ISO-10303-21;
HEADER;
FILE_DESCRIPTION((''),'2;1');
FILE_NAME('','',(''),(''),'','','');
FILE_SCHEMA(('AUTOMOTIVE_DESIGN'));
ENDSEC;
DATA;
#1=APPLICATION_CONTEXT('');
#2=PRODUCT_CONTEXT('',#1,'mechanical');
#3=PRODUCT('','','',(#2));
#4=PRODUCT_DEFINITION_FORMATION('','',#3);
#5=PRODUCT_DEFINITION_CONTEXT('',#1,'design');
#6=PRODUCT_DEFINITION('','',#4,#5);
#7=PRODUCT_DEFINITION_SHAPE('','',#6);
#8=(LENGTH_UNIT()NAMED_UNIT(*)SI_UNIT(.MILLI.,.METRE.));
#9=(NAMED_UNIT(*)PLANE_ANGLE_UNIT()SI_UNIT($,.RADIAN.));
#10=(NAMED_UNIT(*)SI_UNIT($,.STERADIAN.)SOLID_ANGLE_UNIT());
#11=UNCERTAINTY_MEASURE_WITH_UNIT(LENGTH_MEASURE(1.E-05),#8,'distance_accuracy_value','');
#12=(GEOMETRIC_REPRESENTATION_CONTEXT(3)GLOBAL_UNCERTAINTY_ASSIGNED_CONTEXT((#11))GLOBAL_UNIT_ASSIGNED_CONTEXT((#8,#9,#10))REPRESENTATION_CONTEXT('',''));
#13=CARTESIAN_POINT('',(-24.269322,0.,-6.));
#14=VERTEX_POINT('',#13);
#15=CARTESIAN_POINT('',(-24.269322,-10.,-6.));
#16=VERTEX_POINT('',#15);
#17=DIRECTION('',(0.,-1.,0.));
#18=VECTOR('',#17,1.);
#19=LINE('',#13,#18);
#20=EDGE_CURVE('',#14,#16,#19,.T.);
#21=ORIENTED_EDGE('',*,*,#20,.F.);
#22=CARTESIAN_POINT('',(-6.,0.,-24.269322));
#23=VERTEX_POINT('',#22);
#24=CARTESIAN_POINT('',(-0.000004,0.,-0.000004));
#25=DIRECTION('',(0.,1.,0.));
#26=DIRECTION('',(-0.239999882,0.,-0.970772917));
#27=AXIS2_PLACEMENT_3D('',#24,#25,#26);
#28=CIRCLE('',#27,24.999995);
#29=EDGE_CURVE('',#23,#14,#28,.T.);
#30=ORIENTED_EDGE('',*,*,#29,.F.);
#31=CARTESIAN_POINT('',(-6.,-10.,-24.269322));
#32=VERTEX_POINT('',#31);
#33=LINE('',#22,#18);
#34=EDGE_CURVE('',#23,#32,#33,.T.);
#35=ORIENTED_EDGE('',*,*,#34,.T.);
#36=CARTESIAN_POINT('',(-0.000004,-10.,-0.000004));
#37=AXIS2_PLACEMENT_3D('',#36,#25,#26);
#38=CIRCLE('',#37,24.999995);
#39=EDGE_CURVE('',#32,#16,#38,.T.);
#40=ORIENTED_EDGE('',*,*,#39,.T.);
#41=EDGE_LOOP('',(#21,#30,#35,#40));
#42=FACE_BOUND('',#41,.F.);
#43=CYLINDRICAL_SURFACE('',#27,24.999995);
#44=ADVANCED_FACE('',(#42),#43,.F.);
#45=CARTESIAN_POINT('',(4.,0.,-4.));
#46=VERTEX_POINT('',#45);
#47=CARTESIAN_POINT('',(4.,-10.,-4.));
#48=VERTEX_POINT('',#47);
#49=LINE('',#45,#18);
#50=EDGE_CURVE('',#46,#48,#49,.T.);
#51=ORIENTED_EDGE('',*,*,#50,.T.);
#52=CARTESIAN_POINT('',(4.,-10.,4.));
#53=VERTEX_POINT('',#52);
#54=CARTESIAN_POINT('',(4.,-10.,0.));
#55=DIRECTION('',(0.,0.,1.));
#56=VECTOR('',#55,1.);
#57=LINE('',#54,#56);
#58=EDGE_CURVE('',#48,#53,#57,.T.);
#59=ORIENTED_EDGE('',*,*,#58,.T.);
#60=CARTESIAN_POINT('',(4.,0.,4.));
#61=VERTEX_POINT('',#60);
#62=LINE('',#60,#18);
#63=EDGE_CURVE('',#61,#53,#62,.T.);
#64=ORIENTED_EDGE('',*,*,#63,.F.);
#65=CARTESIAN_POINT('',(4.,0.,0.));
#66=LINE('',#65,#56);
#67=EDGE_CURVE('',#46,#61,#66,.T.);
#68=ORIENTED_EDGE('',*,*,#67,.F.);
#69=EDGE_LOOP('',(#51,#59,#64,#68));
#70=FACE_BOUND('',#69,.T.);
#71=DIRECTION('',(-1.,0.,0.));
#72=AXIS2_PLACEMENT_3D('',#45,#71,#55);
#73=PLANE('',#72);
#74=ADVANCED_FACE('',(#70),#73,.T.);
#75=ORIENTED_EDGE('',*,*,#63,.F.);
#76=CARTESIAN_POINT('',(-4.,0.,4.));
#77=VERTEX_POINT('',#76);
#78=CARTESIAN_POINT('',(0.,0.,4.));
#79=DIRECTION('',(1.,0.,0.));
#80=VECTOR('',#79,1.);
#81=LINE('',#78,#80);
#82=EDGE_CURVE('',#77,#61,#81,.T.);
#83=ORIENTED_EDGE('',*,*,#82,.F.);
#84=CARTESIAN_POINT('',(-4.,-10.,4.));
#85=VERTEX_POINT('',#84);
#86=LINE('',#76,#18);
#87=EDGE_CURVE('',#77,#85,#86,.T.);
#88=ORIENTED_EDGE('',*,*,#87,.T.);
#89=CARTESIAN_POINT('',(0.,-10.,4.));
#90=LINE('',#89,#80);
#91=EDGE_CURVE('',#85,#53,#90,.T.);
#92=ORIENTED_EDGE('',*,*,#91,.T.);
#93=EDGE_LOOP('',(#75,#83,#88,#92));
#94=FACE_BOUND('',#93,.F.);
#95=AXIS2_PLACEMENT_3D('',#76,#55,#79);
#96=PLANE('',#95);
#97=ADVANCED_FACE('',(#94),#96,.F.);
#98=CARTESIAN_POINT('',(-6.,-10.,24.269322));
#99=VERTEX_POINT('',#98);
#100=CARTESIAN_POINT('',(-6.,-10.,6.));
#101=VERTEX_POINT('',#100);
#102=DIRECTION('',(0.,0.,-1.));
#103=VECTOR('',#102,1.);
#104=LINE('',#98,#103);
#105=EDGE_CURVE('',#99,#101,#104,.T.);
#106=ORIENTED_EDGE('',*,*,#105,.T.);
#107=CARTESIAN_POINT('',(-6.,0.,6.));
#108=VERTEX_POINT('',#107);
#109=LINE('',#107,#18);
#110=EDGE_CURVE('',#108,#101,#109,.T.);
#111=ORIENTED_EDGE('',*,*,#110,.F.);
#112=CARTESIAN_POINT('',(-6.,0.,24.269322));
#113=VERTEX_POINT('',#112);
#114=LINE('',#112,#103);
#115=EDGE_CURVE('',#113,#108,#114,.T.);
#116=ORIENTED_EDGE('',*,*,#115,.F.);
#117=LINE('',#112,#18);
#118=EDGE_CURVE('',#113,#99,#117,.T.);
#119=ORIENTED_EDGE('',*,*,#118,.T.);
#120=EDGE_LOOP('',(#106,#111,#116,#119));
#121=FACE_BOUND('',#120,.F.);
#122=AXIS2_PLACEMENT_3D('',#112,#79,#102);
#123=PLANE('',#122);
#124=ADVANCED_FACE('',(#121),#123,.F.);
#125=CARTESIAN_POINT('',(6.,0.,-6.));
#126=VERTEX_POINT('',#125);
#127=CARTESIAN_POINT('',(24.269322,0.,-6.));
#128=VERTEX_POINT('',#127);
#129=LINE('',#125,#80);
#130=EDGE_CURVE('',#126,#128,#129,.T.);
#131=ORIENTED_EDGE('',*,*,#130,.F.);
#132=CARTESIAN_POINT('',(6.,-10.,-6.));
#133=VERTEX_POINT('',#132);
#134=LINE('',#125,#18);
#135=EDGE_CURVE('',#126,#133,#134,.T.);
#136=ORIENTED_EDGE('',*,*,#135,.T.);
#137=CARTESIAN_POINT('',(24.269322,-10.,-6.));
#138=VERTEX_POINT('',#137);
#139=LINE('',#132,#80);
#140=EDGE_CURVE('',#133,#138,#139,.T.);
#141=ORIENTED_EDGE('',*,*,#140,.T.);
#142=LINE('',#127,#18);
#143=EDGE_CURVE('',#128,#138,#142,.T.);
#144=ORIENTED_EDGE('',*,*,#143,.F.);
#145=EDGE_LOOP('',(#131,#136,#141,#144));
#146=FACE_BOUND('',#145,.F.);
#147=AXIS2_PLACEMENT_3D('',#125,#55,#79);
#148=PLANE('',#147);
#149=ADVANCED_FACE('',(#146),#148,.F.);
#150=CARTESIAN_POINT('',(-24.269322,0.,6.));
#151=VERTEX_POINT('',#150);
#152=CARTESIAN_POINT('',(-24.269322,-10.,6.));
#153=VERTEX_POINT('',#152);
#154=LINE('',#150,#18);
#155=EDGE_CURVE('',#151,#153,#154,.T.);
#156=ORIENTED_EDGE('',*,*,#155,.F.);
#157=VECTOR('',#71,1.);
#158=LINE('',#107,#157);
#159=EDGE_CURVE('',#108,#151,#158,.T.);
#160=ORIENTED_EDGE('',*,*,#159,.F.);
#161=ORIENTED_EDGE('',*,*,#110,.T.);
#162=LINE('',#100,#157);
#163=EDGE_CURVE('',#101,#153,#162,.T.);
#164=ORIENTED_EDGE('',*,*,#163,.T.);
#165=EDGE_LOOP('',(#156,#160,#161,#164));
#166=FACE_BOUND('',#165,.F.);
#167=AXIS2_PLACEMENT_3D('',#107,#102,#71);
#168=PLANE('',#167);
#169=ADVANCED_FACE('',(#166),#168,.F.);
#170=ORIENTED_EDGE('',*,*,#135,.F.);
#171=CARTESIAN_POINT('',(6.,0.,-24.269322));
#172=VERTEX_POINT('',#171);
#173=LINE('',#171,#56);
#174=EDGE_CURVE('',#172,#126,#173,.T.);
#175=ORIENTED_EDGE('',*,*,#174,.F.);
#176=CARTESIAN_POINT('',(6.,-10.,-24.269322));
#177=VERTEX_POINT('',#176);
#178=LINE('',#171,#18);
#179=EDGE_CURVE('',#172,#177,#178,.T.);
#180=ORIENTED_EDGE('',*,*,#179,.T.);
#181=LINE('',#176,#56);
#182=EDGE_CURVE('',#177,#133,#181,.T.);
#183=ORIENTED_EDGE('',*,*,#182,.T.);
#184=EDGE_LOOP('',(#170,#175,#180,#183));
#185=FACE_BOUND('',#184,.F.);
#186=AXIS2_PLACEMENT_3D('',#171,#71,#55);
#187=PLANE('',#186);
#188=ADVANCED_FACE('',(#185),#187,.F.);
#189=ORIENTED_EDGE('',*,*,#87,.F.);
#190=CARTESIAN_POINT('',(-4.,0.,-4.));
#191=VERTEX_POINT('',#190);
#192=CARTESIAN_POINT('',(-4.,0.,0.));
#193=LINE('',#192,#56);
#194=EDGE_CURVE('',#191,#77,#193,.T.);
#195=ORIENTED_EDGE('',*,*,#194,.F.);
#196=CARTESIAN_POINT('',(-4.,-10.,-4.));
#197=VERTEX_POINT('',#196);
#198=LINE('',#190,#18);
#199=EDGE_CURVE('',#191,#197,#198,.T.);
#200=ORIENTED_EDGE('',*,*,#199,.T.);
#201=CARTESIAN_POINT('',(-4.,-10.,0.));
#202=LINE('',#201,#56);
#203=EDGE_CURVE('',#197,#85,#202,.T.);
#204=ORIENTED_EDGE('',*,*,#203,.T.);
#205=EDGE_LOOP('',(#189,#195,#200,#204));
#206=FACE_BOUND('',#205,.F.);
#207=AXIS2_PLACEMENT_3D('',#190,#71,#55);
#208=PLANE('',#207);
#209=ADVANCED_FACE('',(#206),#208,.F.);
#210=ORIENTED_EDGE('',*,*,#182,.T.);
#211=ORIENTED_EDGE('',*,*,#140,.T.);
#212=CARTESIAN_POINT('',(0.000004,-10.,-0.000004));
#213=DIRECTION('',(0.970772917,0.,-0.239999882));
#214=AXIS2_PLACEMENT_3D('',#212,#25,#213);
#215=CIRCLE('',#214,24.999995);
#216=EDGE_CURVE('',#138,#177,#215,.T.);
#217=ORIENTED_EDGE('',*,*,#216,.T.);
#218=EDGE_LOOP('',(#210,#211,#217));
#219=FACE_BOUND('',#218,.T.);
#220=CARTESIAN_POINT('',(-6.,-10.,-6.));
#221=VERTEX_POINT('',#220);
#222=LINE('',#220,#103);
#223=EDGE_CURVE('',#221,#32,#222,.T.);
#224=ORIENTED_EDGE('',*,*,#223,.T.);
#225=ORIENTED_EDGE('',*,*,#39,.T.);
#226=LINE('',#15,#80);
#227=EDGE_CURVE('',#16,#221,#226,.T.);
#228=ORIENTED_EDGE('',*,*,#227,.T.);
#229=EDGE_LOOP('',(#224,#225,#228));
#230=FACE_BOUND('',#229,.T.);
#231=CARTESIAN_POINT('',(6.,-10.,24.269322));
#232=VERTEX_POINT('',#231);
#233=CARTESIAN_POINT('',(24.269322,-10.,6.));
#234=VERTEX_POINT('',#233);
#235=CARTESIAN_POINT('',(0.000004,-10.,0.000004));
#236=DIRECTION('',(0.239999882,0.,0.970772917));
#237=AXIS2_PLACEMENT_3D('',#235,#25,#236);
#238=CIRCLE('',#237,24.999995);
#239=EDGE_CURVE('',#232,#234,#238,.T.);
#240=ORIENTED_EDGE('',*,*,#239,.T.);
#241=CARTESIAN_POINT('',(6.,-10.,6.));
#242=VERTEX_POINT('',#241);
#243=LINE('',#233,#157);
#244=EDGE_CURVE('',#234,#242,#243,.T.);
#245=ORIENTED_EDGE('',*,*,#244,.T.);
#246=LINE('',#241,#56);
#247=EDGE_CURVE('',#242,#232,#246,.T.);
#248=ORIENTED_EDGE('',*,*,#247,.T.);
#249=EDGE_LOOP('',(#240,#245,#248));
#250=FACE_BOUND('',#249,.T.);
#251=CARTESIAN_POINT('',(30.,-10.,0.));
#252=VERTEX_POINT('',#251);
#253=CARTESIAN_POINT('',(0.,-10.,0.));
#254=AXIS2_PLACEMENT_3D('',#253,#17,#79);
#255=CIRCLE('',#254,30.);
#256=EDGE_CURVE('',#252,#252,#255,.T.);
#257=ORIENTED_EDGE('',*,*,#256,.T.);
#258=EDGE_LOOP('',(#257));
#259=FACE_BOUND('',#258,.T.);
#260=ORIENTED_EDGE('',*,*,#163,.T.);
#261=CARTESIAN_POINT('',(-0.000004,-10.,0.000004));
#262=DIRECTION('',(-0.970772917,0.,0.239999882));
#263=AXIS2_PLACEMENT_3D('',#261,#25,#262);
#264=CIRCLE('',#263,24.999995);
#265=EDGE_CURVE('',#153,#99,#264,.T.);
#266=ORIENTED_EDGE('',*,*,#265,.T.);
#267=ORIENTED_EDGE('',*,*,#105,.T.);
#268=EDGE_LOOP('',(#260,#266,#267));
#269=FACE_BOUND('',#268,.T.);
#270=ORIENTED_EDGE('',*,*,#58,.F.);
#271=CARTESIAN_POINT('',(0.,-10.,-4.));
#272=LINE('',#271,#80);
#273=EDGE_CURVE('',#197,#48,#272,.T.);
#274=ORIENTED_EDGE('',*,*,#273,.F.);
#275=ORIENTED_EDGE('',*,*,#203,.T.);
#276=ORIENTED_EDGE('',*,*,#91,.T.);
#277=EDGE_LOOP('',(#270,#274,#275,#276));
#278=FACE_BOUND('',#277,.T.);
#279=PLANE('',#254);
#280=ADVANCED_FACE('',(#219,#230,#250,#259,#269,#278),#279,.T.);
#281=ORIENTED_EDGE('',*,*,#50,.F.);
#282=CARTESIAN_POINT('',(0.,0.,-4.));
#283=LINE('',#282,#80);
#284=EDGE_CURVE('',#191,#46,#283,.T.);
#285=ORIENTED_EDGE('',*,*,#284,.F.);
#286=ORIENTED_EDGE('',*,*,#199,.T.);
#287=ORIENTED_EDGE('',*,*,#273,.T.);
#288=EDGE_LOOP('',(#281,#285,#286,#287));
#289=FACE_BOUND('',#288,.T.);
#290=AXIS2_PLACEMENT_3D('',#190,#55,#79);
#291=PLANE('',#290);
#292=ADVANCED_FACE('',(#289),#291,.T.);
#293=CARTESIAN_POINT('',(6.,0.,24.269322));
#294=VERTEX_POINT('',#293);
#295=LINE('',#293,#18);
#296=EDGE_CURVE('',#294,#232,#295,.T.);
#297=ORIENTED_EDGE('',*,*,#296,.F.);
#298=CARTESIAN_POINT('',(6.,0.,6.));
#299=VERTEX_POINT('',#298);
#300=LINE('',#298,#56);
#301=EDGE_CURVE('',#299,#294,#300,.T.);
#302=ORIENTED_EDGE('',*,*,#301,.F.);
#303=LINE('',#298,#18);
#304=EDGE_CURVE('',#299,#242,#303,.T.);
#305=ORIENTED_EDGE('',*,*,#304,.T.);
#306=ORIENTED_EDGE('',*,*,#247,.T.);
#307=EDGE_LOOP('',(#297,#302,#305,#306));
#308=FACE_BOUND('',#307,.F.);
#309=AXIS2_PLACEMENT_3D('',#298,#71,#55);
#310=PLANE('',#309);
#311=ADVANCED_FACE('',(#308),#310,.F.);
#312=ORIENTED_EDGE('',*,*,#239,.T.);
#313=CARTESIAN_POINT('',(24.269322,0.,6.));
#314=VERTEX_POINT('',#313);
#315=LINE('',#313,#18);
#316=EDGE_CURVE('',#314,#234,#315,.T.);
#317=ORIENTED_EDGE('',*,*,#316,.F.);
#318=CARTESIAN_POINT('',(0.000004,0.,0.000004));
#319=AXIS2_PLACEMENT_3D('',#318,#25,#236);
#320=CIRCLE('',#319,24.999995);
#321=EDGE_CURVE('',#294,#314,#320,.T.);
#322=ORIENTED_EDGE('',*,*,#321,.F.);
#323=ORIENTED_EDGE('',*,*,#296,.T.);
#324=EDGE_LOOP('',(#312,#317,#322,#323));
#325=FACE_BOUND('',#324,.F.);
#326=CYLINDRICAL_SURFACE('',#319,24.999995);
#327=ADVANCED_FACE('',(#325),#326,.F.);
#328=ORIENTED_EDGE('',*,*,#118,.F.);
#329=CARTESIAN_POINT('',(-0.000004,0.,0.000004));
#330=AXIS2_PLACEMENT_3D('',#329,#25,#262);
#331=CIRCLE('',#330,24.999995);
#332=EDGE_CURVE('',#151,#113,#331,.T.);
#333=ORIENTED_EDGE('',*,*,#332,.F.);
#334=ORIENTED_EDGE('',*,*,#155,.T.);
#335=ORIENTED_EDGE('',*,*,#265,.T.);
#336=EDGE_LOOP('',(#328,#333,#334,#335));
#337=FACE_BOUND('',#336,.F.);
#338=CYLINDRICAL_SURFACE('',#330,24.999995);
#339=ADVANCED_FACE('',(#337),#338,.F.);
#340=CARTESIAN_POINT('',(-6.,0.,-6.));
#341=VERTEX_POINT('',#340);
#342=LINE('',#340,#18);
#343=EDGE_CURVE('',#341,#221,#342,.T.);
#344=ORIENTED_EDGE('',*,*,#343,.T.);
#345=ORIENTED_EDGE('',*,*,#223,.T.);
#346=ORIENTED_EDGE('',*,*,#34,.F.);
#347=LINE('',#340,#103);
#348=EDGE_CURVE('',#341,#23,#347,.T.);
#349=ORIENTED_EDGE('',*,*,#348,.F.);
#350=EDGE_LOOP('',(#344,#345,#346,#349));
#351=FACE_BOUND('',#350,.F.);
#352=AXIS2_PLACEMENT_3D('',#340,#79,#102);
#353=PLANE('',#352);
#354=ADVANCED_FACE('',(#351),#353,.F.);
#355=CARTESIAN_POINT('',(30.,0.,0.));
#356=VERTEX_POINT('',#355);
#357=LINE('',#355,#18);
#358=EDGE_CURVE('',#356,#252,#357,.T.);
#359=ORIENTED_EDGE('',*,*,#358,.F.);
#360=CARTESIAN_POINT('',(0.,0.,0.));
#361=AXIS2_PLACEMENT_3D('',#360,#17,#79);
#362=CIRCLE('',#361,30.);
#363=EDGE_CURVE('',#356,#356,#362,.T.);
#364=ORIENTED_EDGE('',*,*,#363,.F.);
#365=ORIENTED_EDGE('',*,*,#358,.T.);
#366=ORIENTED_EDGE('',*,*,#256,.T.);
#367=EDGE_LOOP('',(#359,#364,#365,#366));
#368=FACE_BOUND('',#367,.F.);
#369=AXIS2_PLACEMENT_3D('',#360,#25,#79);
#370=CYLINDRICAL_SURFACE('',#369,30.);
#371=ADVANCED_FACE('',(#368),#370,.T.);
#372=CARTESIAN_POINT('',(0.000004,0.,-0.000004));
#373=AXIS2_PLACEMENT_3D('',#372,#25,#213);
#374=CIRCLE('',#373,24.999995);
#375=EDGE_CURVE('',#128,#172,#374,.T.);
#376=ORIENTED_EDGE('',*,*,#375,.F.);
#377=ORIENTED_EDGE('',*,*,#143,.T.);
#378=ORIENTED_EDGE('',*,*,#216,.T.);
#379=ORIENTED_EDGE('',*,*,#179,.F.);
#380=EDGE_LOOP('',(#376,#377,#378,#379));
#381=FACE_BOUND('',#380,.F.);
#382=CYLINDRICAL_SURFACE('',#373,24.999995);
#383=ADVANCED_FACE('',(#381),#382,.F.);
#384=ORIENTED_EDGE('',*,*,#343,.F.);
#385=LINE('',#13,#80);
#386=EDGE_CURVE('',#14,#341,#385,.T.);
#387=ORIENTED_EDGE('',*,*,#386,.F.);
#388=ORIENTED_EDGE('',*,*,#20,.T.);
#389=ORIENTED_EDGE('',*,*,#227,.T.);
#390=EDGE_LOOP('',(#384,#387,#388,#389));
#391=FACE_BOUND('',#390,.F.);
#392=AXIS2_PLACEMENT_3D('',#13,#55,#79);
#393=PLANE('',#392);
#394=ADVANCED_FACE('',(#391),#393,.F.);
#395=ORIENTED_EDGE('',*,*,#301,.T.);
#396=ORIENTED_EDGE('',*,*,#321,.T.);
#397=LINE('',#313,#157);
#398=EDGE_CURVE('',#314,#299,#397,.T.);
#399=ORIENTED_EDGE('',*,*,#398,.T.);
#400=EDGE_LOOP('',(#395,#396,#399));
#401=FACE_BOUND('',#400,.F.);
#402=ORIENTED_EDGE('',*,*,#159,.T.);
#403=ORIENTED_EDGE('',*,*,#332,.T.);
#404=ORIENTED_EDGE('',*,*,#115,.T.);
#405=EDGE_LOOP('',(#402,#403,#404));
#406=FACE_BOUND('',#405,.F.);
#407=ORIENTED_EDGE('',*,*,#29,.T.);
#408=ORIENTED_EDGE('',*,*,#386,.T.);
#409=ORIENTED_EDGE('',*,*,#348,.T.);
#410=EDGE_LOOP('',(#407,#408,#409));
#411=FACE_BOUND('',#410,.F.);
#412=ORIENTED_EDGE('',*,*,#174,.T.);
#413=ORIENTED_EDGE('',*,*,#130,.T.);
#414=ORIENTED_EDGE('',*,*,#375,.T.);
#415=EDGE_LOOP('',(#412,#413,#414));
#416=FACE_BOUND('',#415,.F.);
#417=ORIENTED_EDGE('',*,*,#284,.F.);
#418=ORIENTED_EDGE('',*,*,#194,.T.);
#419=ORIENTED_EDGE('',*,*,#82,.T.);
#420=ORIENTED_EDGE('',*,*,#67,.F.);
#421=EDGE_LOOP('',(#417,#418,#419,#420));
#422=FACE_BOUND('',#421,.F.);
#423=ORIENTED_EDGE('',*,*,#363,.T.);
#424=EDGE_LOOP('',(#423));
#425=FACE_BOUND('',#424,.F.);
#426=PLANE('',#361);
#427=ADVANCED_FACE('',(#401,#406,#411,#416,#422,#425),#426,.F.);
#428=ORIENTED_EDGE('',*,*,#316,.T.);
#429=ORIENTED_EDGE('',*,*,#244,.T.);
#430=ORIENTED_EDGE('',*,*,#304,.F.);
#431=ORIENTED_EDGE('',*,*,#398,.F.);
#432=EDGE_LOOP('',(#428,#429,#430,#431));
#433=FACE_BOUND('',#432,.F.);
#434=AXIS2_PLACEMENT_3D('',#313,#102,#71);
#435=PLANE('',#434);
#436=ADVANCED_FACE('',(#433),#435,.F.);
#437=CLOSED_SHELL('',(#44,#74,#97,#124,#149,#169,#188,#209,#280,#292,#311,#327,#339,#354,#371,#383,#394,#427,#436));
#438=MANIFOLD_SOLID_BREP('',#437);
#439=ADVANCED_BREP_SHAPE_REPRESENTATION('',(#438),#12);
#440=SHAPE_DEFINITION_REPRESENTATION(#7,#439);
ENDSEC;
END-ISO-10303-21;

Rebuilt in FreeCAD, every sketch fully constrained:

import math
import FreeCAD as App
import Part
import Sketcher

doc = App.newDocument("Part")
body = doc.addObject("PartDesign::Body", "Body")

# Sketch on XZ plane
sketch1 = body.newObject("Sketcher::SketchObject", "Sketch")
sketch1.AttachmentSupport = (doc.getObject("XZ_Plane"), [""])
sketch1.MapMode = "FlatFace"
sketch1.addGeometry(Part.Circle(App.Vector(0, 0, 0), App.Vector(0, 0, 1), 30), False)
sketch1.addGeometry(Part.LineSegment(App.Vector(-24, -6, 0), App.Vector(-6, -6, 0)), False)
sketch1.addGeometry(Part.LineSegment(App.Vector(-6, -6, 0), App.Vector(-6, -24, 0)), False)
sketch1.addGeometry(Part.ArcOfCircle(Part.Circle(App.Vector(0, 0, 0), App.Vector(0, 0, 1), 25), math.radians(-166), math.radians(-104)), False)
sketch1.addGeometry(Part.LineSegment(App.Vector(6, -24, 0), App.Vector(6, -6, 0)), False)
sketch1.addGeometry(Part.LineSegment(App.Vector(6, -6, 0), App.Vector(24, -6, 0)), False)
sketch1.addGeometry(Part.ArcOfCircle(Part.Circle(App.Vector(0, 0, 0), App.Vector(0, 0, 1), 25), math.radians(-76), math.radians(-14)), False)
sketch1.addGeometry(Part.LineSegment(App.Vector(4, -4, 0), App.Vector(-4, -4, 0)), False)
sketch1.addGeometry(Part.LineSegment(App.Vector(-4, -4, 0), App.Vector(-4, 4, 0)), False)
sketch1.addGeometry(Part.LineSegment(App.Vector(-4, 4, 0), App.Vector(4, 4, 0)), False)
sketch1.addGeometry(Part.LineSegment(App.Vector(4, 4, 0), App.Vector(4, -4, 0)), False)
sketch1.addGeometry(Part.ArcOfCircle(Part.Circle(App.Vector(0, 0, 0), App.Vector(0, 0, 1), 25), math.radians(104), math.radians(166)), False)
sketch1.addGeometry(Part.LineSegment(App.Vector(-6, 24, 0), App.Vector(-6, 6, 0)), False)
sketch1.addGeometry(Part.LineSegment(App.Vector(-6, 6, 0), App.Vector(-24, 6, 0)), False)
sketch1.addGeometry(Part.LineSegment(App.Vector(6, 6, 0), App.Vector(6, 24, 0)), False)
sketch1.addGeometry(Part.ArcOfCircle(Part.Circle(App.Vector(0, 0, 0), App.Vector(0, 0, 1), 25), math.radians(14), math.radians(76)), False)
sketch1.addGeometry(Part.LineSegment(App.Vector(24, 6, 0), App.Vector(6, 6, 0)), False)
sketch1.addConstraint(Sketcher.Constraint("Coincident", 1, 2, 2, 1))
sketch1.addConstraint(Sketcher.Constraint("Coincident", 2, 2, 3, 2))
sketch1.addConstraint(Sketcher.Constraint("Coincident", 3, 1, 1, 1))
sketch1.addConstraint(Sketcher.Constraint("Coincident", 4, 2, 5, 1))
sketch1.addConstraint(Sketcher.Constraint("Coincident", 5, 2, 6, 2))
sketch1.addConstraint(Sketcher.Constraint("Coincident", 6, 1, 4, 1))
sketch1.addConstraint(Sketcher.Constraint("Coincident", 7, 2, 8, 1))
sketch1.addConstraint(Sketcher.Constraint("Coincident", 8, 2, 9, 1))
sketch1.addConstraint(Sketcher.Constraint("Coincident", 9, 2, 10, 1))
sketch1.addConstraint(Sketcher.Constraint("Coincident", 10, 2, 7, 1))
sketch1.addConstraint(Sketcher.Constraint("Coincident", 11, 1, 12, 1))
sketch1.addConstraint(Sketcher.Constraint("Coincident", 12, 2, 13, 1))
sketch1.addConstraint(Sketcher.Constraint("Coincident", 13, 2, 11, 2))
sketch1.addConstraint(Sketcher.Constraint("Coincident", 14, 2, 15, 2))
sketch1.addConstraint(Sketcher.Constraint("Coincident", 15, 1, 16, 1))
sketch1.addConstraint(Sketcher.Constraint("Coincident", 16, 2, 14, 1))
sketch1.addConstraint(Sketcher.Constraint("Horizontal", 1))
sketch1.addConstraint(Sketcher.Constraint("Vertical", 2))
sketch1.addConstraint(Sketcher.Constraint("Vertical", 4))
sketch1.addConstraint(Sketcher.Constraint("Horizontal", 5))
sketch1.addConstraint(Sketcher.Constraint("Horizontal", 7))
sketch1.addConstraint(Sketcher.Constraint("Vertical", 8))
sketch1.addConstraint(Sketcher.Constraint("Horizontal", 9))
sketch1.addConstraint(Sketcher.Constraint("Vertical", 10))
sketch1.addConstraint(Sketcher.Constraint("Vertical", 12))
sketch1.addConstraint(Sketcher.Constraint("Horizontal", 13))
sketch1.addConstraint(Sketcher.Constraint("Vertical", 14))
sketch1.addConstraint(Sketcher.Constraint("Horizontal", 16))
sketch1.addConstraint(Sketcher.Constraint("Coincident", 0, 3, -1, 1))
sketch1.addConstraint(Sketcher.Constraint("Coincident", 3, 3, -1, 1))
sketch1.addConstraint(Sketcher.Constraint("Coincident", 6, 3, -1, 1))
sketch1.addConstraint(Sketcher.Constraint("Coincident", 11, 3, -1, 1))
sketch1.addConstraint(Sketcher.Constraint("Coincident", 15, 3, -1, 1))
sketch1.addConstraint(Sketcher.Constraint("Equal", 3, 6))
sketch1.addConstraint(Sketcher.Constraint("Equal", 6, 11))
sketch1.addConstraint(Sketcher.Constraint("Equal", 11, 15))
sketch1.addConstraint(Sketcher.Constraint("Symmetric", 7, 2, 9, 2, -1, 1))
sketch1.addConstraint(Sketcher.Constraint("Symmetric", 4, 2, 12, 2, -1, 1))
sketch1.addConstraint(Sketcher.Constraint("Symmetric", 1, 2, 16, 2, -1, 1))
sketch1.addConstraint(Sketcher.Constraint("Symmetric", 1, 2, 4, 2, -2))
sketch1.addConstraint(Sketcher.Constraint("Equal", 16, 2))
sketch1.addConstraint(Sketcher.Constraint("Equal", 9, 8))
sketch1.addConstraint(Sketcher.Constraint("Diameter", 0, 60.0))
sketch1.addConstraint(Sketcher.Constraint("DistanceX", 7, 2, 7, 1, 8.0))
sketch1.addConstraint(Sketcher.Constraint("DistanceX", 1, 2, -1, 1, 6.0))
sketch1.addConstraint(Sketcher.Constraint("Radius", 3, 24.999995))
pad1 = body.newObject("PartDesign::Pad", "Pad")
pad1.Profile = sketch1
pad1.Length = 10

doc.recompute()
